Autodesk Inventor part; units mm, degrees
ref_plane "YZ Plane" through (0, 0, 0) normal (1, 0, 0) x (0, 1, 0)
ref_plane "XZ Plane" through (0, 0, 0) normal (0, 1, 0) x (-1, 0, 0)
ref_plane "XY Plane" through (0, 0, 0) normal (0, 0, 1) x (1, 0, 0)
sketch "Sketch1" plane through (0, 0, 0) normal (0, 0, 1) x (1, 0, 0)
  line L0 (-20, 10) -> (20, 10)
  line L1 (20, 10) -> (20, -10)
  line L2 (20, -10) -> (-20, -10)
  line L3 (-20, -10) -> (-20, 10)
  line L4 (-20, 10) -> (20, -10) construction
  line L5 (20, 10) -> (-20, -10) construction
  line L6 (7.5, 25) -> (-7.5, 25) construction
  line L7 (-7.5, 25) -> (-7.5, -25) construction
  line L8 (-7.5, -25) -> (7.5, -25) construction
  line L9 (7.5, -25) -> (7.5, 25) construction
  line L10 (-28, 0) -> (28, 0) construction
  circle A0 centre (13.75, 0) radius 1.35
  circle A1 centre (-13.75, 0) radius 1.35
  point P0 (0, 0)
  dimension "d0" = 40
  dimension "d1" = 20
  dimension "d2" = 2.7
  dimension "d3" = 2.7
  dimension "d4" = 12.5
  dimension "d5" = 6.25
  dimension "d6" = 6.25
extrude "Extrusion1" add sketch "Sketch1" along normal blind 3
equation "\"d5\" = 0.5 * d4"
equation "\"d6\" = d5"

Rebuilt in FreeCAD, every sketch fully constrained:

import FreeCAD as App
import Part
import Sketcher

V = App.Vector
Q = App.Units.Quantity


def add_polygon(sketch, points):
    """Adds a closed chain of lines whose ends are joined by coincident constraints."""
    first, n = sketch.GeometryCount, len(points)
    for a, b in zip(points, points[1:] + points[:1]):
        sketch.addGeometry(Part.LineSegment(App.Vector(*a, 0), App.Vector(*b, 0)), False)
    for i in range(n):
        sketch.addConstraint(Sketcher.Constraint("Coincident", first + i, 2, first + (i + 1) % n, 1))

doc = App.newDocument("Part")
body = doc.addObject("PartDesign::Body", "Body")

# Sketch on XY plane
sketch1 = body.newObject("Sketcher::SketchObject", "Sketch")
sketch1.AttachmentSupport = (doc.getObject("XY_Plane"), [""])
sketch1.MapMode = "FlatFace"
add_polygon(sketch1, [(20, 10), (-20, 10), (-20, -10), (20, -10)])  # lines 0-3
sketch1.addGeometry(Part.Circle(V(-13.8, 0, 0), V(0, 0, 1), 1.4), False)  # 4
sketch1.addGeometry(Part.Circle(V(13.8, 0, 0), V(0, 0, 1), 1.4), False)  # 5
sketch1.addConstraint(Sketcher.Constraint("Horizontal", 0))
sketch1.addConstraint(Sketcher.Constraint("Vertical", 1))
sketch1.addConstraint(Sketcher.Constraint("Horizontal", 2))
sketch1.addConstraint(Sketcher.Constraint("Vertical", 3))
sketch1.addConstraint(Sketcher.Constraint("Equal", 4, 5))
sketch1.addConstraint(Sketcher.Constraint("Symmetric", 4, 3, 5, 3, -1, 1))
sketch1.addConstraint(Sketcher.Constraint("Symmetric", 0, 2, 2, 2, -1, 1))
sketch1.addConstraint(Sketcher.Constraint("PointOnObject", 4, 3, -1))
sketch1.addConstraint(Sketcher.Constraint("Diameter", 4, Q("2.7 mm")))
sketch1.addConstraint(Sketcher.Constraint("DistanceX", 0, 2, 0, 1, Q("40 mm")))
sketch1.addConstraint(Sketcher.Constraint("DistanceY", 1, 2, 1, 1, Q("20 mm")))
sketch1.addConstraint(Sketcher.Constraint("DistanceX", 0, 2, 4, 3, Q("6.25 mm")))
pad1 = body.newObject("PartDesign::Pad", "Pad")
pad1.Profile = sketch1
pad1.Length = 3

doc.recompute()
